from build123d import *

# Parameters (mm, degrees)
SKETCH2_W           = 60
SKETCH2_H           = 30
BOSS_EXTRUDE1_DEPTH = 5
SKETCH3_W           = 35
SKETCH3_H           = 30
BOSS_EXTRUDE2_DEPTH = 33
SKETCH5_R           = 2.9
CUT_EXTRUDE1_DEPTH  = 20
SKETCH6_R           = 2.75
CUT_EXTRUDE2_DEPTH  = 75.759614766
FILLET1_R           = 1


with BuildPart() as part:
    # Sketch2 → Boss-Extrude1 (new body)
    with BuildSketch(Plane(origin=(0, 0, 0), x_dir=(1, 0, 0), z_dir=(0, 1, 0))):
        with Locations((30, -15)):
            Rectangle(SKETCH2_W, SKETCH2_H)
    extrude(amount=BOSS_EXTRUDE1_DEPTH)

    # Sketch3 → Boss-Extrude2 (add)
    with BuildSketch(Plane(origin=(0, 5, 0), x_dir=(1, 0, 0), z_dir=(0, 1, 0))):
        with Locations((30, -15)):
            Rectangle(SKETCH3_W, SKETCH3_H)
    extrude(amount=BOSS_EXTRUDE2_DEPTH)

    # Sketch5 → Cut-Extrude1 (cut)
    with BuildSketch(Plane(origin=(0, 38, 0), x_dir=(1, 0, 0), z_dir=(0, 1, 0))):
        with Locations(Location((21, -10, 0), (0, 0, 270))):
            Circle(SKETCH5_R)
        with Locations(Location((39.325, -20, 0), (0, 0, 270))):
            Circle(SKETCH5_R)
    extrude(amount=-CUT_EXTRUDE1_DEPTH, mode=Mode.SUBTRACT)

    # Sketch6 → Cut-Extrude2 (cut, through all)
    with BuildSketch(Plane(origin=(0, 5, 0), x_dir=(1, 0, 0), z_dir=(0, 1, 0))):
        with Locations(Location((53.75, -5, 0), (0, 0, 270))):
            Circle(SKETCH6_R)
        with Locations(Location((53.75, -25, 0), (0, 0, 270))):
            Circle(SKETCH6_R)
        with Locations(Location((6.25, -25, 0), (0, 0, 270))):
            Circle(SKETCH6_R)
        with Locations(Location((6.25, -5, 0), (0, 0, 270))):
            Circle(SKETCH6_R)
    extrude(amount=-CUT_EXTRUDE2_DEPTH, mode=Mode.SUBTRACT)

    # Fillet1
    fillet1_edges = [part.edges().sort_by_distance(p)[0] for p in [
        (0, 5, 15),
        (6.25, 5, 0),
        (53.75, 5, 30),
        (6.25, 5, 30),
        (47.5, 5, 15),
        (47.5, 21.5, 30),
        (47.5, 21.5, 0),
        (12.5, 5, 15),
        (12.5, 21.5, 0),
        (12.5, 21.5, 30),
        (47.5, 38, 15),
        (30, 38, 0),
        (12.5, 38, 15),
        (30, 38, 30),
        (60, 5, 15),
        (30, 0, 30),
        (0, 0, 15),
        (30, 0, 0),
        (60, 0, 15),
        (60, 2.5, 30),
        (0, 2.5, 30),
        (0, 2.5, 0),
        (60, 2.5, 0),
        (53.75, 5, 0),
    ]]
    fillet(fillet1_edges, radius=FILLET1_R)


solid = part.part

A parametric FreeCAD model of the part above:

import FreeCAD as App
import Part
import Sketcher


def edges_at(feature, points):
    """Names of the edges that pass closest to the given points."""
    edges = feature.Shape.Edges
    near = lambda p: min(range(len(edges)), key=lambda i: edges[i].distToShape(Part.Vertex(*p))[0])
    return sorted({f"Edge{near(p) + 1}" for p in points})


def add_polygon(sketch, points):
    """Adds a closed chain of lines whose ends are joined by coincident constraints."""
    first, n = sketch.GeometryCount, len(points)
    for a, b in zip(points, points[1:] + points[:1]):
        sketch.addGeometry(Part.LineSegment(App.Vector(*a, 0), App.Vector(*b, 0)), False)
    for i in range(n):
        sketch.addConstraint(Sketcher.Constraint("Coincident", first + i, 2, first + (i + 1) % n, 1))

doc = App.newDocument("Part")
body = doc.addObject("PartDesign::Body", "Body")

# Sketch on XZ plane
sketch1 = body.newObject("Sketcher::SketchObject", "Sketch")
sketch1.AttachmentSupport = (doc.getObject("XZ_Plane"), [""])
sketch1.MapMode = "FlatFace"
add_polygon(sketch1, [(0, 0), (0, 30), (60, 30), (60, 0)])  # lines 0-3
sketch1.addConstraint(Sketcher.Constraint("Vertical", 0))
sketch1.addConstraint(Sketcher.Constraint("Horizontal", 1))
sketch1.addConstraint(Sketcher.Constraint("Vertical", 2))
sketch1.addConstraint(Sketcher.Constraint("Horizontal", 3))
sketch1.addConstraint(Sketcher.Constraint("Coincident", 3, 2, -1, 1))
sketch1.addConstraint(Sketcher.Constraint("DistanceX", 1, 1, 1, 2, 60.0))
sketch1.addConstraint(Sketcher.Constraint("DistanceY", 0, 1, 0, 2, 30.0))
pad1 = body.newObject("PartDesign::Pad", "Pad")
pad1.Profile = sketch1
pad1.Length = 5
pad1.Reversed = True

# Sketch on XZ plane
sketch2 = body.newObject("Sketcher::SketchObject", "Sketch001")
sketch2.AttachmentSupport = (doc.getObject("XZ_Plane"), [""])
sketch2.MapMode = "FlatFace"
sketch2.AttachmentOffset = App.Placement(App.Vector(0, 0, -5), App.Rotation())
add_polygon(sketch2, [(12, 0), (12, 30), (48, 30), (48, 0)])  # lines 0-3
sketch2.addConstraint(Sketcher.Constraint("Vertical", 0))
sketch2.addConstraint(Sketcher.Constraint("Horizontal", 1))
sketch2.addConstraint(Sketcher.Constraint("Vertical", 2))
sketch2.addConstraint(Sketcher.Constraint("Horizontal", 3))
sketch2.addConstraint(Sketcher.Constraint("PointOnObject", 2, 2, -1))
sketch2.addConstraint(Sketcher.Constraint("DistanceX", 1, 1, 1, 2, 35.0))
sketch2.addConstraint(Sketcher.Constraint("DistanceY", 0, 1, 0, 2, 30.0))
sketch2.addConstraint(Sketcher.Constraint("DistanceX", -1, 1, 0, 2, 12.5))
pad2 = body.newObject("PartDesign::Pad", "Pad001")
pad2.Profile = sketch2
pad2.Length = 33
pad2.Reversed = True

# Sketch on XZ plane
sketch3 = body.newObject("Sketcher::SketchObject", "Sketch002")
sketch3.AttachmentSupport = (doc.getObject("XZ_Plane"), [""])
sketch3.MapMode = "FlatFace"
sketch3.AttachmentOffset = App.Placement(App.Vector(0, 0, -38), App.Rotation())
sketch3.addGeometry(Part.Circle(App.Vector(21, 10, 0), App.Vector(0, 0, 1), 2.9), False)
sketch3.addGeometry(Part.Circle(App.Vector(39.3, 20, 0), App.Vector(0, 0, 1), 2.9), False)
sketch3.addConstraint(Sketcher.Constraint("Equal", 0, 1))
sketch3.addConstraint(Sketcher.Constraint("Diameter", 0, 5.8))
sketch3.addConstraint(Sketcher.Constraint("DistanceX", -1, 1, 0, 3, 21.0))
sketch3.addConstraint(Sketcher.Constraint("DistanceY", -1, 1, 0, 3, 10.0))
sketch3.addConstraint(Sketcher.Constraint("DistanceY", -1, 1, 1, 3, 20.0))
sketch3.addConstraint(Sketcher.Constraint("DistanceX", -1, 1, 1, 3, 39.325))
pocket1 = body.newObject("PartDesign::Pocket", "Pocket")
pocket1.Profile = sketch3
pocket1.Length = 20
pocket1.Reversed = True

# Sketch on XZ plane
sketch4 = body.newObject("Sketcher::SketchObject", "Sketch003")
sketch4.AttachmentSupport = (doc.getObject("XZ_Plane"), [""])
sketch4.MapMode = "FlatFace"
sketch4.AttachmentOffset = App.Placement(App.Vector(0, 0, -5), App.Rotation())
sketch4.addGeometry(Part.Circle(App.Vector(53.8, 5, 0), App.Vector(0, 0, 1), 2.8), False)
sketch4.addGeometry(Part.Circle(App.Vector(53.8, 25, 0), App.Vector(0, 0, 1), 2.8), False)
sketch4.addGeometry(Part.Circle(App.Vector(6.2, 25, 0), App.Vector(0, 0, 1), 2.8), False)
sketch4.addGeometry(Part.Circle(App.Vector(6.2, 5, 0), App.Vector(0, 0, 1), 2.8), False)
sketch4.addConstraint(Sketcher.Constraint("Equal", 0, 1))
sketch4.addConstraint(Sketcher.Constraint("Equal", 1, 2))
sketch4.addConstraint(Sketcher.Constraint("Equal", 2, 3))
sketch4.addConstraint(Sketcher.Constraint("Horizontal", 1, 3, 2, 3))
sketch4.addConstraint(Sketcher.Constraint("Horizontal", 0, 3, 3, 3))
sketch4.addConstraint(Sketcher.Constraint("Vertical", 0, 3, 1, 3))
sketch4.addConstraint(Sketcher.Constraint("Vertical", 2, 3, 3, 3))
sketch4.addConstraint(Sketcher.Constraint("Diameter", 0, 5.5))
sketch4.addConstraint(Sketcher.Constraint("DistanceY", -1, 1, 0, 3, 5.0))
sketch4.addConstraint(Sketcher.Constraint("DistanceY", -1, 1, 1, 3, 25.0))
sketch4.addConstraint(Sketcher.Constraint("DistanceX", 2, 3, 1, 3, 47.5))
sketch4.addConstraint(Sketcher.Constraint("DistanceX", -1, 1, 0, 3, 53.75))
pocket2 = body.newObject("PartDesign::Pocket", "Pocket001")
pocket2.Profile = sketch4
pocket2.Type = "ThroughAll"
pocket2.Reversed = True
doc.recompute()

fillet = body.newObject("PartDesign::Fillet", "Fillet")
fillet.Base = (pocket2, edges_at(pocket2, [
    (0, 5, 15),
    (6.25, 5, 0),
    (53.75, 5, 30),
    (6.25, 5, 30),
    (47.5, 5, 15),
    (47.5, 21.5, 30),
    (47.5, 21.5, 0),
    (12.5, 5, 15),
    (12.5, 21.5, 0),
    (12.5, 21.5, 30),
    (47.5, 38, 15),
    (30, 38, 0),
    (12.5, 38, 15),
    (30, 38, 30),
    (60, 5, 15),
    (30, 0, 30),
    (0, 0, 15),
    (30, 0, 0),
    (60, 0, 15),
    (60, 2.5, 30),
    (0, 2.5, 30),
    (0, 2.5, 0),
    (60, 2.5, 0),
    (53.75, 5, 0),
]))
fillet.Radius = 1

doc.recompute()
